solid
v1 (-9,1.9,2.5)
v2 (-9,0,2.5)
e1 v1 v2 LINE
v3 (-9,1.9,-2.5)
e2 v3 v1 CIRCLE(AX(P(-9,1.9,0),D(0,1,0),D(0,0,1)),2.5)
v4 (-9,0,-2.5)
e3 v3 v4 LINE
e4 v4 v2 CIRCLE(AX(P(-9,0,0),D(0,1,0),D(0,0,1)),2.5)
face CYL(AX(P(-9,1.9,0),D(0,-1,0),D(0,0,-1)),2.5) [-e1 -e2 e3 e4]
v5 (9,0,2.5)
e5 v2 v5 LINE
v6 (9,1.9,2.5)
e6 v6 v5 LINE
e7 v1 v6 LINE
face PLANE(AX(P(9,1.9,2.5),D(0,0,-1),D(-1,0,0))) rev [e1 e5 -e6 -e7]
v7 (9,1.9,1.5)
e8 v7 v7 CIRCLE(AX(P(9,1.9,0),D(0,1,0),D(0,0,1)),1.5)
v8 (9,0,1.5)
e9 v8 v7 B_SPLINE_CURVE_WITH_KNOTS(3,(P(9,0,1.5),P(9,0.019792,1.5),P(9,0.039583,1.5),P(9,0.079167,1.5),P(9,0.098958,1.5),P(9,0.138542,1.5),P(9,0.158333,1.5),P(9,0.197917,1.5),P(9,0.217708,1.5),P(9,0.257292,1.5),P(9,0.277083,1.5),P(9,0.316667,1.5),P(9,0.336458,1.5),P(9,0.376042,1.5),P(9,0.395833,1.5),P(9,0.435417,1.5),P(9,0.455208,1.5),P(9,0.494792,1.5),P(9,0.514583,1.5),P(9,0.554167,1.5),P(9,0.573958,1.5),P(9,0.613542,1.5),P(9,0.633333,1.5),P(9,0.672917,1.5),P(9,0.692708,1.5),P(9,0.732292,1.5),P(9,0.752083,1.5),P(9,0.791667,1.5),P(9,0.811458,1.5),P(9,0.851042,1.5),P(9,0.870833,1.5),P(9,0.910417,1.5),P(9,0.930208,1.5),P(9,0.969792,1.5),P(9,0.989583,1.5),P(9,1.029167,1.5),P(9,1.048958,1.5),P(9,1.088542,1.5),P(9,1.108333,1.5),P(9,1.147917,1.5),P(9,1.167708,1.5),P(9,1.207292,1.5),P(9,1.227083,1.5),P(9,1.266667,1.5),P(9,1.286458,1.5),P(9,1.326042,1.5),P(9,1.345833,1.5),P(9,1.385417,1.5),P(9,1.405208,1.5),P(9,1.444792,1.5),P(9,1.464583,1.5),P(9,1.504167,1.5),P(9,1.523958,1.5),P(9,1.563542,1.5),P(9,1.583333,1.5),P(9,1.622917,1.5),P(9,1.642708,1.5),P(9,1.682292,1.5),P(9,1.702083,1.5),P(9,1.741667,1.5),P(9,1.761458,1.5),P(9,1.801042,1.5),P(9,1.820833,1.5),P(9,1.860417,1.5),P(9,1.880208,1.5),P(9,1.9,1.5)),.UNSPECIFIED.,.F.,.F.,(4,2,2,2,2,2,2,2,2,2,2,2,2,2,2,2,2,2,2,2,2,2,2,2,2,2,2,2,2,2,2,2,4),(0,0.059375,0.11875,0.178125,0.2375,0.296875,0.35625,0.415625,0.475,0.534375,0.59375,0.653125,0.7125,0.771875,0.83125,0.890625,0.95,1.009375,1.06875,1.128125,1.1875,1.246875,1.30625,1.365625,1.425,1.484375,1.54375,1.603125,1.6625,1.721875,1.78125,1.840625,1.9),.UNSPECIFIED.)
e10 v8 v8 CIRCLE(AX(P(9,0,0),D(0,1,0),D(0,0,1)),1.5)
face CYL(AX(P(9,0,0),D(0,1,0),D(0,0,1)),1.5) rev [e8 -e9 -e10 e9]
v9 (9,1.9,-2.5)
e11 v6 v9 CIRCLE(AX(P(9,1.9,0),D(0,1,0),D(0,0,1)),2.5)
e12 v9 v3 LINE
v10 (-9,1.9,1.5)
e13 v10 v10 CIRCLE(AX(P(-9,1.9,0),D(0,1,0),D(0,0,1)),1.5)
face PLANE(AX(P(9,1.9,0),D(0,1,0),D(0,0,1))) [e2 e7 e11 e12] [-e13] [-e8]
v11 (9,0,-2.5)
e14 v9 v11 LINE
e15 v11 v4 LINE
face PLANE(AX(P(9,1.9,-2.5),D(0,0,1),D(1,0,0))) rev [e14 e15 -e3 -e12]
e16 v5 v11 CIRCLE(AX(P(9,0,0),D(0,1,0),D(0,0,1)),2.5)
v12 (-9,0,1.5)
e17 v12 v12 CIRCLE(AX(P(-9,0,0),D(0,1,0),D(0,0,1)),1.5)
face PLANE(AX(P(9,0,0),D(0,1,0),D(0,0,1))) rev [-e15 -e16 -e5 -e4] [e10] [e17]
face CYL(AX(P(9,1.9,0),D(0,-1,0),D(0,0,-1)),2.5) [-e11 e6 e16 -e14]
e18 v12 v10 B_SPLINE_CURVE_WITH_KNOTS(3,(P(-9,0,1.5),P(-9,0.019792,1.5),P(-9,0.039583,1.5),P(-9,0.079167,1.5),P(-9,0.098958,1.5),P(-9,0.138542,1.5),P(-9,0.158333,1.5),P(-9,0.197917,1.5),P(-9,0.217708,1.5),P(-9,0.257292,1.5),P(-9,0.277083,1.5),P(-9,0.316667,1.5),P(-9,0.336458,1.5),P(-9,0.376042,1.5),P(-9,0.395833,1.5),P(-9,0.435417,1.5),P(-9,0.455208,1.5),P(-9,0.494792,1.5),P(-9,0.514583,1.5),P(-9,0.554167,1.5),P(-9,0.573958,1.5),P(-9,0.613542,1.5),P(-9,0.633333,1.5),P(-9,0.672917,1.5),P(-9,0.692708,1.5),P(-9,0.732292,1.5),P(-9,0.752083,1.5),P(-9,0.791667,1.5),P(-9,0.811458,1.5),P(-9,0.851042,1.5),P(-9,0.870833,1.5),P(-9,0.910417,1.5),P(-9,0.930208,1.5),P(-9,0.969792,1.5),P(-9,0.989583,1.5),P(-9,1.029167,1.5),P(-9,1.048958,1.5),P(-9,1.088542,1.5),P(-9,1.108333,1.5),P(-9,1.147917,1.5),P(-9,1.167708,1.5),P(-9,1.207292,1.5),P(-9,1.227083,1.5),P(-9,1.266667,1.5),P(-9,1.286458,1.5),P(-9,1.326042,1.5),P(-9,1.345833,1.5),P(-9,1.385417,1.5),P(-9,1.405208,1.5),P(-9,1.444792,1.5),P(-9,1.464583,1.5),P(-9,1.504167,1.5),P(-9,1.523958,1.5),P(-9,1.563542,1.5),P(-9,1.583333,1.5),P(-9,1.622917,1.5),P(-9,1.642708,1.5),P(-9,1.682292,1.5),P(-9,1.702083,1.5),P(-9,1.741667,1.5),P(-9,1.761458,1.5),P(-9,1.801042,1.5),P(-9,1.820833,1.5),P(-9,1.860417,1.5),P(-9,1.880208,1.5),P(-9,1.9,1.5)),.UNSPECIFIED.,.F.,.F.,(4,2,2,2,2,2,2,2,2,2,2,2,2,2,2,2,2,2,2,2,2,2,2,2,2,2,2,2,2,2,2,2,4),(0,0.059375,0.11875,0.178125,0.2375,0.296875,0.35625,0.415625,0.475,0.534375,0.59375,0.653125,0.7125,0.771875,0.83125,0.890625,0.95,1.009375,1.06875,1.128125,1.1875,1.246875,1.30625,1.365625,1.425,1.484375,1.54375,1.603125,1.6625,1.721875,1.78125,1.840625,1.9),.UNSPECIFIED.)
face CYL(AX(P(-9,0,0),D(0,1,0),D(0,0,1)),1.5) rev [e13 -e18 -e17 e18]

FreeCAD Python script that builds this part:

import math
import FreeCAD as App
import Part
import Sketcher
from FreeCAD import Vector

doc = App.newDocument("Part")
body = doc.addObject("PartDesign::Body", "Body")

# Sketch on XZ plane
sketch1 = body.newObject("Sketcher::SketchObject", "Sketch")
sketch1.AttachmentSupport = (doc.getObject("XZ_Plane"), [""])
sketch1.MapMode = "FlatFace"
sketch1.addGeometry([
    Part.LineSegment(Vector(-9, 2.5, 0), Vector(9, 2.5, 0)),
    Part.ArcOfCircle(Part.Circle(Vector(9, 0, 0), Vector(0, 0, 1), 2.5), math.radians(-90), math.radians(90)),
    Part.LineSegment(Vector(9, -2.5, 0), Vector(-9, -2.5, 0)),
    Part.ArcOfCircle(Part.Circle(Vector(-9, 0, 0), Vector(0, 0, 1), 2.5), math.radians(90), math.radians(270)),
], False)
sketch1.addConstraint([
    Sketcher.Constraint("Tangent", 0, 2, 1, 2),
    Sketcher.Constraint("Tangent", 1, 1, 2, 1),
    Sketcher.Constraint("Tangent", 2, 2, 3, 2),
    Sketcher.Constraint("Tangent", 3, 1, 0, 1),
    Sketcher.Constraint("Horizontal", 0),
    Sketcher.Constraint("Horizontal", 2),
    Sketcher.Constraint("Symmetric", 1, 3, 3, 3, -1, 1),
    Sketcher.Constraint("Radius", 1, 2.5),
    Sketcher.Constraint("DistanceX", 0, 1, 0, 2, 18.0),
])
pad1 = body.newObject("PartDesign::Pad", "Pad")
pad1.Profile = sketch1
pad1.Length = 1.9
pad1.Reversed = True

# Sketch on XZ plane
sketch2 = body.newObject("Sketcher::SketchObject", "Sketch001")
sketch2.AttachmentSupport = (doc.getObject("XZ_Plane"), [""])
sketch2.MapMode = "FlatFace"
sketch2.AttachmentOffset = App.Placement(Vector(0, 0, -1.9), App.Rotation())
sketch2.addGeometry([
    Part.Circle(Vector(9, 0, 0), Vector(0, 0, 1), 1.5),
    Part.Circle(Vector(-9, 0, 0), Vector(0, 0, 1), 1.5),
], False)
sketch2.addConstraint([
    Sketcher.Constraint("Equal", 0, 1),
    Sketcher.Constraint("Symmetric", 0, 3, 1, 3, -1, 1),
    Sketcher.Constraint("PointOnObject", 0, 3, -1),
    Sketcher.Constraint("Diameter", 0, 3.0),
    Sketcher.Constraint("DistanceX", -1, 1, 0, 3, 9.0),
])
pocket1 = body.newObject("PartDesign::Pocket", "Pocket")
pocket1.Profile = sketch2
pocket1.Type = "ThroughAll"
pocket1.Reversed = True

doc.recompute()
